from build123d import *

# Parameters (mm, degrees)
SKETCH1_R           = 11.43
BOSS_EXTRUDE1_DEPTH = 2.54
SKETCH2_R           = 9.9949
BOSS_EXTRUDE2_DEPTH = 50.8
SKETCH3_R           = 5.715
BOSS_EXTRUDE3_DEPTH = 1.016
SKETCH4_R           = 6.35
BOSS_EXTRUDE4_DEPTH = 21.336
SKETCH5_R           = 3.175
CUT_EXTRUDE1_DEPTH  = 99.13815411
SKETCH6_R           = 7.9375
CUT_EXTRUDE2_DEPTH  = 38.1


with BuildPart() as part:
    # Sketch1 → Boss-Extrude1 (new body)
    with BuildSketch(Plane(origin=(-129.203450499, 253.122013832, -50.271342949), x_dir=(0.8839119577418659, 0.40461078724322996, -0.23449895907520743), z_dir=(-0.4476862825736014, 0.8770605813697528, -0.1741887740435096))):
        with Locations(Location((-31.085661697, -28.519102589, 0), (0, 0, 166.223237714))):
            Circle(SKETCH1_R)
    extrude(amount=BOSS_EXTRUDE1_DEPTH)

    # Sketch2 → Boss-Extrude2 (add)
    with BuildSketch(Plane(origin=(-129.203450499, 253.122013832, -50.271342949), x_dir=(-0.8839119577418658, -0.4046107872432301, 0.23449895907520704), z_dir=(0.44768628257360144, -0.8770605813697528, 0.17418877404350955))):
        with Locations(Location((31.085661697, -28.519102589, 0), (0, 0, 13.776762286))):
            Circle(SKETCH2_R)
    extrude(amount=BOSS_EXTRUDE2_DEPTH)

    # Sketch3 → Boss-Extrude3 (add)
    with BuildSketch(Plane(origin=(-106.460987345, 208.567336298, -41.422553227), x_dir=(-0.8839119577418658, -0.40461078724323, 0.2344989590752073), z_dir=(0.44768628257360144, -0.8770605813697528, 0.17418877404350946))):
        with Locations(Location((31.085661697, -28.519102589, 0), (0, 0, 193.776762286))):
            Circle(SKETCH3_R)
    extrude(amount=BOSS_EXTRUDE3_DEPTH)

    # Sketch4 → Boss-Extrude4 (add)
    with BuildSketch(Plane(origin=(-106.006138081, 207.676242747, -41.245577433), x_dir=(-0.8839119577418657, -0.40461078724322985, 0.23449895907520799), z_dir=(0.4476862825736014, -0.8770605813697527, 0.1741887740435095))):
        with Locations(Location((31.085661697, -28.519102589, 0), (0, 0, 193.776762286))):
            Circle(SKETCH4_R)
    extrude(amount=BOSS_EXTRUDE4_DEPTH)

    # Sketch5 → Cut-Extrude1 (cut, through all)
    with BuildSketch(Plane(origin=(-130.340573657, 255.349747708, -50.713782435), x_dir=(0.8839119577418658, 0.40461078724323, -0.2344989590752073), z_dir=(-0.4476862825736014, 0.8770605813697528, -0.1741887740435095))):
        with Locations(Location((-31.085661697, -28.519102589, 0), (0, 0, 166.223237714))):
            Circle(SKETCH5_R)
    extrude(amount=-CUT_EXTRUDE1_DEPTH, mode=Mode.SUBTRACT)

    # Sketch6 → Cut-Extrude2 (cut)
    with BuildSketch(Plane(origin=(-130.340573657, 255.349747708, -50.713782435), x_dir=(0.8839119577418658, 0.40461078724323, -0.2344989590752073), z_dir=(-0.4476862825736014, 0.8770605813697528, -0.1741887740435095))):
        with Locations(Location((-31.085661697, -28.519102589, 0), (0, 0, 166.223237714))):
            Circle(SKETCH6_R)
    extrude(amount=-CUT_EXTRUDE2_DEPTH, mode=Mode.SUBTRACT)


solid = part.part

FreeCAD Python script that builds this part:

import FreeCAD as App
import Part
import Sketcher
Q = App.Units.Quantity

doc = App.newDocument("Part")
body = doc.addObject("PartDesign::Body", "Body")

# Sketch on an angled plane
sketch1 = body.newObject("Sketcher::SketchObject", "Sketch")
sketch1.Placement = App.Placement(App.Vector(-129.20345, 253.122014, -50.271343), App.Rotation(App.Vector(0.883911958, 0.404610787, -0.234498959), App.Vector(-0.135191136, -0.258949508, -0.956383035), App.Vector(-0.447686283, 0.877060581, -0.174188774), "ZXY"))
sketch1.addGeometry(Part.Circle(App.Vector(-31.085662, -28.519103, 0), App.Vector(0, 0, 1), 11.43), False)
sketch1.addConstraint([
    Sketcher.Constraint("Diameter", 0, Q("0.9 in")),
    Sketcher.Constraint("DistanceX", 0, 3, -1, 1, 31.085662),
    Sketcher.Constraint("DistanceY", 0, 3, -1, 1, 28.519103),
])
pad1 = body.newObject("PartDesign::Pad", "Pad")
pad1.Profile = sketch1
pad1.Length = Q("0.1 in")

# Sketch on an angled plane
sketch2 = body.newObject("Sketcher::SketchObject", "Sketch001")
sketch2.Placement = App.Placement(App.Vector(-129.20345, 253.122014, -50.271343), App.Rotation(App.Vector(-0.883911958, -0.404610787, 0.234498959), App.Vector(-0.135191136, -0.258949508, -0.956383035), App.Vector(0.447686283, -0.877060581, 0.174188774), "ZXY"))
sketch2.addGeometry(Part.Circle(App.Vector(31.085662, -28.519103, 0), App.Vector(0, 0, 1), 9.9949), False)
sketch2.addConstraint([
    Sketcher.Constraint("Diameter", 0, Q("0.787 in")),
    Sketcher.Constraint("DistanceX", -1, 1, 0, 3, 31.085662),
    Sketcher.Constraint("DistanceY", 0, 3, -1, 1, 28.519103),
])
pad2 = body.newObject("PartDesign::Pad", "Pad001")
pad2.Profile = sketch2
pad2.Length = Q("2 in")

# Sketch on an angled plane
sketch3 = body.newObject("Sketcher::SketchObject", "Sketch002")
sketch3.Placement = App.Placement(App.Vector(-106.460987, 208.567336, -41.422553), App.Rotation(App.Vector(-0.883911958, -0.404610787, 0.234498959), App.Vector(-0.135191136, -0.258949508, -0.956383035), App.Vector(0.447686283, -0.877060581, 0.174188774), "ZXY"))
sketch3.addGeometry(Part.Circle(App.Vector(31.085662, -28.519103, 0), App.Vector(0, 0, 1), 5.715), False)
sketch3.addConstraint([
    Sketcher.Constraint("Diameter", 0, Q("0.45 in")),
    Sketcher.Constraint("DistanceX", -1, 1, 0, 3, 31.085662),
    Sketcher.Constraint("DistanceY", 0, 3, -1, 1, 28.519103),
])
pad3 = body.newObject("PartDesign::Pad", "Pad002")
pad3.Profile = sketch3
pad3.Length = Q("0.04 in")

# Sketch on an angled plane
sketch4 = body.newObject("Sketcher::SketchObject", "Sketch003")
sketch4.Placement = App.Placement(App.Vector(-106.006138, 207.676243, -41.245577), App.Rotation(App.Vector(-0.883911958, -0.404610787, 0.234498959), App.Vector(-0.135191136, -0.258949508, -0.956383035), App.Vector(0.447686283, -0.877060581, 0.174188774), "ZXY"))
sketch4.addGeometry(Part.Circle(App.Vector(31.085662, -28.519103, 0), App.Vector(0, 0, 1), 6.35), False)
sketch4.addConstraint([
    Sketcher.Constraint("Diameter", 0, Q("0.5 in")),
    Sketcher.Constraint("DistanceX", -1, 1, 0, 3, 31.085662),
    Sketcher.Constraint("DistanceY", 0, 3, -1, 1, 28.519103),
])
pad4 = body.newObject("PartDesign::Pad", "Pad003")
pad4.Profile = sketch4
pad4.Length = Q("0.84 in")

# Sketch on an angled plane
sketch5 = body.newObject("Sketcher::SketchObject", "Sketch004")
sketch5.Placement = App.Placement(App.Vector(-130.340574, 255.349748, -50.713782), App.Rotation(App.Vector(0.883911958, 0.404610787, -0.234498959), App.Vector(-0.135191136, -0.258949508, -0.956383035), App.Vector(-0.447686283, 0.877060581, -0.174188774), "ZXY"))
sketch5.addGeometry(Part.Circle(App.Vector(-31.085662, -28.519103, 0), App.Vector(0, 0, 1), 3.175), False)
sketch5.addConstraint([
    Sketcher.Constraint("Diameter", 0, Q("0.25 in")),
    Sketcher.Constraint("DistanceX", 0, 3, -1, 1, 31.085662),
    Sketcher.Constraint("DistanceY", 0, 3, -1, 1, 28.519103),
])
pocket1 = body.newObject("PartDesign::Pocket", "Pocket")
pocket1.Profile = sketch5
pocket1.Type = "ThroughAll"

# Sketch on an angled plane
sketch6 = body.newObject("Sketcher::SketchObject", "Sketch005")
sketch6.Placement = App.Placement(App.Vector(-130.340574, 255.349748, -50.713782), App.Rotation(App.Vector(0.883911958, 0.404610787, -0.234498959), App.Vector(-0.135191136, -0.258949508, -0.956383035), App.Vector(-0.447686283, 0.877060581, -0.174188774), "ZXY"))
sketch6.addGeometry(Part.Circle(App.Vector(-31.085662, -28.519103, 0), App.Vector(0, 0, 1), 7.9375), False)
sketch6.addConstraint([
    Sketcher.Constraint("Diameter", 0, Q("0.625 in")),
    Sketcher.Constraint("DistanceX", 0, 3, -1, 1, 31.085662),
    Sketcher.Constraint("DistanceY", 0, 3, -1, 1, 28.519103),
])
pocket2 = body.newObject("PartDesign::Pocket", "Pocket001")
pocket2.Profile = sketch6
pocket2.Length = Q("1.5 in")

doc.recompute()
